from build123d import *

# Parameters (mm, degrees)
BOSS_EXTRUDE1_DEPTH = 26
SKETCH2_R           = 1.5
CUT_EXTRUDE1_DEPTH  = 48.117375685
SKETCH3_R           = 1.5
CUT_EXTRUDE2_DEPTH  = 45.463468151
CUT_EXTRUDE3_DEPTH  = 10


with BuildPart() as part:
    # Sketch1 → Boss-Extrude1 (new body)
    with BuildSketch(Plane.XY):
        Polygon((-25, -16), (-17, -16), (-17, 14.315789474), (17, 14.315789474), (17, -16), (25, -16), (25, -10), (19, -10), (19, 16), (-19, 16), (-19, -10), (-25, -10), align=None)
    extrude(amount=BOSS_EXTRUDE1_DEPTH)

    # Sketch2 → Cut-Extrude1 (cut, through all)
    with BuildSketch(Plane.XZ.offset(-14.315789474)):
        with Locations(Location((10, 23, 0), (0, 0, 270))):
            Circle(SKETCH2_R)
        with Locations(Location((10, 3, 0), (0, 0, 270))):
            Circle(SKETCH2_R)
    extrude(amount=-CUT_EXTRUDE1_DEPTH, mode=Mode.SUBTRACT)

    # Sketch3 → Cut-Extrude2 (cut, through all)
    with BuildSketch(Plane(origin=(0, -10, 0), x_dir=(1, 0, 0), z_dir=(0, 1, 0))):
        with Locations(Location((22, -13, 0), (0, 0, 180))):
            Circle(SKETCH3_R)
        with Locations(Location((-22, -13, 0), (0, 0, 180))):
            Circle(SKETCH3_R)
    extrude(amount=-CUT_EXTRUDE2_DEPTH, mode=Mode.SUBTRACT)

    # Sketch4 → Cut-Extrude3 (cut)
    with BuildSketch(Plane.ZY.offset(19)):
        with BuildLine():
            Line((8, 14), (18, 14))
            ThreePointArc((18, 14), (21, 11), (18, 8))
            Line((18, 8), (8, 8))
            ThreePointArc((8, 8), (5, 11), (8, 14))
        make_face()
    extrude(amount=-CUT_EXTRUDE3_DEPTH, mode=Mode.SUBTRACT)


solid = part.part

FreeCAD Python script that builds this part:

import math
import FreeCAD as App
import Part
import Sketcher
from FreeCAD import Vector

doc = App.newDocument("Part")
params = doc.addObject("Spreadsheet::Sheet", "Params")
for row, (alias, value) in enumerate([
    ("sketch1_width", "8 mm"),
    ("sketch1_width2", "34 mm"),
    ("sketch1_width3", "6 mm"),
    ("sketch1_height", "26 mm"),
    ("pad1_length", "26 mm"),
    ("sketch2_diameter", "3 mm"),
    ("sketch3_diameter", "3 mm"),
    ("sketch4_radius", "3 mm"),
    ("sketch4_height", "10 mm"),
    ("pocket3_length", "10 mm"),
], start=1):
    params.set(f"A{row}", alias)
    params.set(f"B{row}", "=" + value)
    params.setAlias(f"B{row}", alias)

body = doc.addObject("PartDesign::Body", "Body")

# Sketch on XY plane
sketch1 = body.newObject("Sketcher::SketchObject", "Sketch")
sketch1.AttachmentSupport = (doc.getObject("XY_Plane"), [""])
sketch1.MapMode = "FlatFace"
sketch1.addGeometry(Part.LineSegment(Vector(-25, -16, 0), Vector(-17, -16, 0)), False)
sketch1.addGeometry(Part.LineSegment(Vector(-17, -16, 0), Vector(-17, 14, 0)), False)
sketch1.addGeometry(Part.LineSegment(Vector(-17, 14, 0), Vector(17, 14, 0)), False)
sketch1.addGeometry(Part.LineSegment(Vector(17, 14, 0), Vector(17, -16, 0)), False)
sketch1.addGeometry(Part.LineSegment(Vector(17, -16, 0), Vector(25, -16, 0)), False)
sketch1.addGeometry(Part.LineSegment(Vector(25, -16, 0), Vector(25, -10, 0)), False)
sketch1.addGeometry(Part.LineSegment(Vector(25, -10, 0), Vector(19, -10, 0)), False)
sketch1.addGeometry(Part.LineSegment(Vector(19, -10, 0), Vector(19, 16, 0)), False)
sketch1.addGeometry(Part.LineSegment(Vector(19, 16, 0), Vector(-19, 16, 0)), False)
sketch1.addGeometry(Part.LineSegment(Vector(-19, 16, 0), Vector(-19, -10, 0)), False)
sketch1.addGeometry(Part.LineSegment(Vector(-19, -10, 0), Vector(-25, -10, 0)), False)
sketch1.addGeometry(Part.LineSegment(Vector(-25, -10, 0), Vector(-25, -16, 0)), False)
sketch1.addConstraint(Sketcher.Constraint("Coincident", 0, 2, 1, 1))
sketch1.addConstraint(Sketcher.Constraint("Coincident", 1, 2, 2, 1))
sketch1.addConstraint(Sketcher.Constraint("Coincident", 2, 2, 3, 1))
sketch1.addConstraint(Sketcher.Constraint("Coincident", 3, 2, 4, 1))
sketch1.addConstraint(Sketcher.Constraint("Coincident", 4, 2, 5, 1))
sketch1.addConstraint(Sketcher.Constraint("Coincident", 5, 2, 6, 1))
sketch1.addConstraint(Sketcher.Constraint("Coincident", 6, 2, 7, 1))
sketch1.addConstraint(Sketcher.Constraint("Coincident", 7, 2, 8, 1))
sketch1.addConstraint(Sketcher.Constraint("Coincident", 8, 2, 9, 1))
sketch1.addConstraint(Sketcher.Constraint("Coincident", 9, 2, 10, 1))
sketch1.addConstraint(Sketcher.Constraint("Coincident", 10, 2, 11, 1))
sketch1.addConstraint(Sketcher.Constraint("Coincident", 11, 2, 0, 1))
sketch1.addConstraint(Sketcher.Constraint("Horizontal", 0))
sketch1.addConstraint(Sketcher.Constraint("Vertical", 1))
sketch1.addConstraint(Sketcher.Constraint("Horizontal", 2))
sketch1.addConstraint(Sketcher.Constraint("Vertical", 3))
sketch1.addConstraint(Sketcher.Constraint("Horizontal", 4))
sketch1.addConstraint(Sketcher.Constraint("Vertical", 5))
sketch1.addConstraint(Sketcher.Constraint("Horizontal", 6))
sketch1.addConstraint(Sketcher.Constraint("Vertical", 7))
sketch1.addConstraint(Sketcher.Constraint("Horizontal", 8))
sketch1.addConstraint(Sketcher.Constraint("Vertical", 9))
sketch1.addConstraint(Sketcher.Constraint("Horizontal", 10))
sketch1.addConstraint(Sketcher.Constraint("Vertical", 11))
sketch1.addConstraint(Sketcher.Constraint("Symmetric", 0, 2, 3, 2, -2))
sketch1.addConstraint(Sketcher.Constraint("Symmetric", 6, 2, 9, 2, -2))
sketch1.addConstraint(Sketcher.Constraint("Equal", 0, 4))
sketch1.addConstraint(Sketcher.Constraint("Equal", 10, 5))
sketch1.addConstraint(Sketcher.Constraint("DistanceX", 0, 1, 0, 2, 8.0))
sketch1.addConstraint(Sketcher.Constraint("DistanceX", 2, 1, 2, 2, 34.0))
sketch1.addConstraint(Sketcher.Constraint("DistanceX", 6, 2, 6, 1, 6.0))
sketch1.addConstraint(Sketcher.Constraint("DistanceY", 7, 1, 7, 2, 26.0))
sketch1.addConstraint(Sketcher.Constraint("DistanceY", 0, 2, -1, 1, 16.0))
sketch1.addConstraint(Sketcher.Constraint("DistanceY", 1, 1, 1, 2, 30.315789))
sketch1.setExpression("Constraints[28]", "Params.sketch1_width")
sketch1.setExpression("Constraints[29]", "Params.sketch1_width2")
sketch1.setExpression("Constraints[30]", "Params.sketch1_width3")
sketch1.setExpression("Constraints[31]", "Params.sketch1_height")
pad1 = body.newObject("PartDesign::Pad", "Pad")
pad1.Profile = sketch1
pad1.setExpression("Length", "Params.pad1_length")

# Sketch on XZ plane
sketch2 = body.newObject("Sketcher::SketchObject", "Sketch001")
sketch2.AttachmentSupport = (doc.getObject("XZ_Plane"), [""])
sketch2.MapMode = "FlatFace"
sketch2.AttachmentOffset = App.Placement(Vector(0, 0, -14.315789), App.Rotation())
sketch2.addGeometry(Part.Circle(Vector(10, 23, 0), Vector(0, 0, 1), 1.5), False)
sketch2.addGeometry(Part.Circle(Vector(10, 3, 0), Vector(0, 0, 1), 1.5), False)
sketch2.addConstraint(Sketcher.Constraint("Equal", 0, 1))
sketch2.addConstraint(Sketcher.Constraint("Vertical", 0, 3, 1, 3))
sketch2.addConstraint(Sketcher.Constraint("Diameter", 0, 3.0))
sketch2.addConstraint(Sketcher.Constraint("DistanceX", -1, 1, 0, 3, 10.0))
sketch2.addConstraint(Sketcher.Constraint("DistanceY", -1, 1, 0, 3, 23.0))
sketch2.addConstraint(Sketcher.Constraint("DistanceY", -1, 1, 1, 3, 3.0))
sketch2.setExpression("Constraints[2]", "Params.sketch2_diameter")
pocket1 = body.newObject("PartDesign::Pocket", "Pocket")
pocket1.Profile = sketch2
pocket1.Type = "ThroughAll"

# Sketch on XZ plane
sketch3 = body.newObject("Sketcher::SketchObject", "Sketch002")
sketch3.AttachmentSupport = (doc.getObject("XZ_Plane"), [""])
sketch3.MapMode = "FlatFace"
sketch3.AttachmentOffset = App.Placement(Vector(0, 0, 10), App.Rotation())
sketch3.addGeometry(Part.Circle(Vector(22, 13, 0), Vector(0, 0, 1), 1.5), False)
sketch3.addGeometry(Part.Circle(Vector(-22, 13, 0), Vector(0, 0, 1), 1.5), False)
sketch3.addConstraint(Sketcher.Constraint("Equal", 0, 1))
sketch3.addConstraint(Sketcher.Constraint("Symmetric", 0, 3, 1, 3, -2))
sketch3.addConstraint(Sketcher.Constraint("Diameter", 0, 3.0))
sketch3.addConstraint(Sketcher.Constraint("DistanceX", -1, 1, 0, 3, 22.0))
sketch3.addConstraint(Sketcher.Constraint("DistanceY", -1, 1, 0, 3, 13.0))
sketch3.setExpression("Constraints[2]", "Params.sketch3_diameter")
pocket2 = body.newObject("PartDesign::Pocket", "Pocket001")
pocket2.Profile = sketch3
pocket2.Type = "ThroughAll"
pocket2.Reversed = True

# Sketch on YZ plane
sketch4 = body.newObject("Sketcher::SketchObject", "Sketch003")
sketch4.AttachmentSupport = (doc.getObject("YZ_Plane"), [""])
sketch4.MapMode = "FlatFace"
sketch4.AttachmentOffset = App.Placement(Vector(0, 0, -19), App.Rotation())
sketch4.addGeometry(Part.LineSegment(Vector(14, 18, 0), Vector(14, 8, 0)), False)
sketch4.addGeometry(Part.ArcOfCircle(Part.Circle(Vector(11, 8, 0), Vector(0, 0, 1), 3), math.radians(180), math.radians(360)), False)
sketch4.addGeometry(Part.LineSegment(Vector(8, 8, 0), Vector(8, 18, 0)), False)
sketch4.addGeometry(Part.ArcOfCircle(Part.Circle(Vector(11, 18, 0), Vector(0, 0, 1), 3), math.radians(0), math.radians(180)), False)
sketch4.addConstraint(Sketcher.Constraint("Tangent", 0, 2, 1, 2))
sketch4.addConstraint(Sketcher.Constraint("Tangent", 1, 1, 2, 1))
sketch4.addConstraint(Sketcher.Constraint("Tangent", 2, 2, 3, 2))
sketch4.addConstraint(Sketcher.Constraint("Tangent", 3, 1, 0, 1))
sketch4.addConstraint(Sketcher.Constraint("Vertical", 0))
sketch4.addConstraint(Sketcher.Constraint("Vertical", 2))
sketch4.addConstraint(Sketcher.Constraint("Radius", 1, 3.0))
sketch4.addConstraint(Sketcher.Constraint("DistanceY", 0, 2, 0, 1, 10.0))
sketch4.addConstraint(Sketcher.Constraint("DistanceX", -1, 1, 1, 3, 11.0))
sketch4.addConstraint(Sketcher.Constraint("DistanceY", -1, 1, 1, 3, 8.0))
sketch4.setExpression("Constraints[6]", "Params.sketch4_radius")
sketch4.setExpression("Constraints[7]", "Params.sketch4_height")
pocket3 = body.newObject("PartDesign::Pocket", "Pocket002")
pocket3.Profile = sketch4
pocket3.setExpression("Length", "Params.pocket3_length")
pocket3.Reversed = True

doc.recompute()
